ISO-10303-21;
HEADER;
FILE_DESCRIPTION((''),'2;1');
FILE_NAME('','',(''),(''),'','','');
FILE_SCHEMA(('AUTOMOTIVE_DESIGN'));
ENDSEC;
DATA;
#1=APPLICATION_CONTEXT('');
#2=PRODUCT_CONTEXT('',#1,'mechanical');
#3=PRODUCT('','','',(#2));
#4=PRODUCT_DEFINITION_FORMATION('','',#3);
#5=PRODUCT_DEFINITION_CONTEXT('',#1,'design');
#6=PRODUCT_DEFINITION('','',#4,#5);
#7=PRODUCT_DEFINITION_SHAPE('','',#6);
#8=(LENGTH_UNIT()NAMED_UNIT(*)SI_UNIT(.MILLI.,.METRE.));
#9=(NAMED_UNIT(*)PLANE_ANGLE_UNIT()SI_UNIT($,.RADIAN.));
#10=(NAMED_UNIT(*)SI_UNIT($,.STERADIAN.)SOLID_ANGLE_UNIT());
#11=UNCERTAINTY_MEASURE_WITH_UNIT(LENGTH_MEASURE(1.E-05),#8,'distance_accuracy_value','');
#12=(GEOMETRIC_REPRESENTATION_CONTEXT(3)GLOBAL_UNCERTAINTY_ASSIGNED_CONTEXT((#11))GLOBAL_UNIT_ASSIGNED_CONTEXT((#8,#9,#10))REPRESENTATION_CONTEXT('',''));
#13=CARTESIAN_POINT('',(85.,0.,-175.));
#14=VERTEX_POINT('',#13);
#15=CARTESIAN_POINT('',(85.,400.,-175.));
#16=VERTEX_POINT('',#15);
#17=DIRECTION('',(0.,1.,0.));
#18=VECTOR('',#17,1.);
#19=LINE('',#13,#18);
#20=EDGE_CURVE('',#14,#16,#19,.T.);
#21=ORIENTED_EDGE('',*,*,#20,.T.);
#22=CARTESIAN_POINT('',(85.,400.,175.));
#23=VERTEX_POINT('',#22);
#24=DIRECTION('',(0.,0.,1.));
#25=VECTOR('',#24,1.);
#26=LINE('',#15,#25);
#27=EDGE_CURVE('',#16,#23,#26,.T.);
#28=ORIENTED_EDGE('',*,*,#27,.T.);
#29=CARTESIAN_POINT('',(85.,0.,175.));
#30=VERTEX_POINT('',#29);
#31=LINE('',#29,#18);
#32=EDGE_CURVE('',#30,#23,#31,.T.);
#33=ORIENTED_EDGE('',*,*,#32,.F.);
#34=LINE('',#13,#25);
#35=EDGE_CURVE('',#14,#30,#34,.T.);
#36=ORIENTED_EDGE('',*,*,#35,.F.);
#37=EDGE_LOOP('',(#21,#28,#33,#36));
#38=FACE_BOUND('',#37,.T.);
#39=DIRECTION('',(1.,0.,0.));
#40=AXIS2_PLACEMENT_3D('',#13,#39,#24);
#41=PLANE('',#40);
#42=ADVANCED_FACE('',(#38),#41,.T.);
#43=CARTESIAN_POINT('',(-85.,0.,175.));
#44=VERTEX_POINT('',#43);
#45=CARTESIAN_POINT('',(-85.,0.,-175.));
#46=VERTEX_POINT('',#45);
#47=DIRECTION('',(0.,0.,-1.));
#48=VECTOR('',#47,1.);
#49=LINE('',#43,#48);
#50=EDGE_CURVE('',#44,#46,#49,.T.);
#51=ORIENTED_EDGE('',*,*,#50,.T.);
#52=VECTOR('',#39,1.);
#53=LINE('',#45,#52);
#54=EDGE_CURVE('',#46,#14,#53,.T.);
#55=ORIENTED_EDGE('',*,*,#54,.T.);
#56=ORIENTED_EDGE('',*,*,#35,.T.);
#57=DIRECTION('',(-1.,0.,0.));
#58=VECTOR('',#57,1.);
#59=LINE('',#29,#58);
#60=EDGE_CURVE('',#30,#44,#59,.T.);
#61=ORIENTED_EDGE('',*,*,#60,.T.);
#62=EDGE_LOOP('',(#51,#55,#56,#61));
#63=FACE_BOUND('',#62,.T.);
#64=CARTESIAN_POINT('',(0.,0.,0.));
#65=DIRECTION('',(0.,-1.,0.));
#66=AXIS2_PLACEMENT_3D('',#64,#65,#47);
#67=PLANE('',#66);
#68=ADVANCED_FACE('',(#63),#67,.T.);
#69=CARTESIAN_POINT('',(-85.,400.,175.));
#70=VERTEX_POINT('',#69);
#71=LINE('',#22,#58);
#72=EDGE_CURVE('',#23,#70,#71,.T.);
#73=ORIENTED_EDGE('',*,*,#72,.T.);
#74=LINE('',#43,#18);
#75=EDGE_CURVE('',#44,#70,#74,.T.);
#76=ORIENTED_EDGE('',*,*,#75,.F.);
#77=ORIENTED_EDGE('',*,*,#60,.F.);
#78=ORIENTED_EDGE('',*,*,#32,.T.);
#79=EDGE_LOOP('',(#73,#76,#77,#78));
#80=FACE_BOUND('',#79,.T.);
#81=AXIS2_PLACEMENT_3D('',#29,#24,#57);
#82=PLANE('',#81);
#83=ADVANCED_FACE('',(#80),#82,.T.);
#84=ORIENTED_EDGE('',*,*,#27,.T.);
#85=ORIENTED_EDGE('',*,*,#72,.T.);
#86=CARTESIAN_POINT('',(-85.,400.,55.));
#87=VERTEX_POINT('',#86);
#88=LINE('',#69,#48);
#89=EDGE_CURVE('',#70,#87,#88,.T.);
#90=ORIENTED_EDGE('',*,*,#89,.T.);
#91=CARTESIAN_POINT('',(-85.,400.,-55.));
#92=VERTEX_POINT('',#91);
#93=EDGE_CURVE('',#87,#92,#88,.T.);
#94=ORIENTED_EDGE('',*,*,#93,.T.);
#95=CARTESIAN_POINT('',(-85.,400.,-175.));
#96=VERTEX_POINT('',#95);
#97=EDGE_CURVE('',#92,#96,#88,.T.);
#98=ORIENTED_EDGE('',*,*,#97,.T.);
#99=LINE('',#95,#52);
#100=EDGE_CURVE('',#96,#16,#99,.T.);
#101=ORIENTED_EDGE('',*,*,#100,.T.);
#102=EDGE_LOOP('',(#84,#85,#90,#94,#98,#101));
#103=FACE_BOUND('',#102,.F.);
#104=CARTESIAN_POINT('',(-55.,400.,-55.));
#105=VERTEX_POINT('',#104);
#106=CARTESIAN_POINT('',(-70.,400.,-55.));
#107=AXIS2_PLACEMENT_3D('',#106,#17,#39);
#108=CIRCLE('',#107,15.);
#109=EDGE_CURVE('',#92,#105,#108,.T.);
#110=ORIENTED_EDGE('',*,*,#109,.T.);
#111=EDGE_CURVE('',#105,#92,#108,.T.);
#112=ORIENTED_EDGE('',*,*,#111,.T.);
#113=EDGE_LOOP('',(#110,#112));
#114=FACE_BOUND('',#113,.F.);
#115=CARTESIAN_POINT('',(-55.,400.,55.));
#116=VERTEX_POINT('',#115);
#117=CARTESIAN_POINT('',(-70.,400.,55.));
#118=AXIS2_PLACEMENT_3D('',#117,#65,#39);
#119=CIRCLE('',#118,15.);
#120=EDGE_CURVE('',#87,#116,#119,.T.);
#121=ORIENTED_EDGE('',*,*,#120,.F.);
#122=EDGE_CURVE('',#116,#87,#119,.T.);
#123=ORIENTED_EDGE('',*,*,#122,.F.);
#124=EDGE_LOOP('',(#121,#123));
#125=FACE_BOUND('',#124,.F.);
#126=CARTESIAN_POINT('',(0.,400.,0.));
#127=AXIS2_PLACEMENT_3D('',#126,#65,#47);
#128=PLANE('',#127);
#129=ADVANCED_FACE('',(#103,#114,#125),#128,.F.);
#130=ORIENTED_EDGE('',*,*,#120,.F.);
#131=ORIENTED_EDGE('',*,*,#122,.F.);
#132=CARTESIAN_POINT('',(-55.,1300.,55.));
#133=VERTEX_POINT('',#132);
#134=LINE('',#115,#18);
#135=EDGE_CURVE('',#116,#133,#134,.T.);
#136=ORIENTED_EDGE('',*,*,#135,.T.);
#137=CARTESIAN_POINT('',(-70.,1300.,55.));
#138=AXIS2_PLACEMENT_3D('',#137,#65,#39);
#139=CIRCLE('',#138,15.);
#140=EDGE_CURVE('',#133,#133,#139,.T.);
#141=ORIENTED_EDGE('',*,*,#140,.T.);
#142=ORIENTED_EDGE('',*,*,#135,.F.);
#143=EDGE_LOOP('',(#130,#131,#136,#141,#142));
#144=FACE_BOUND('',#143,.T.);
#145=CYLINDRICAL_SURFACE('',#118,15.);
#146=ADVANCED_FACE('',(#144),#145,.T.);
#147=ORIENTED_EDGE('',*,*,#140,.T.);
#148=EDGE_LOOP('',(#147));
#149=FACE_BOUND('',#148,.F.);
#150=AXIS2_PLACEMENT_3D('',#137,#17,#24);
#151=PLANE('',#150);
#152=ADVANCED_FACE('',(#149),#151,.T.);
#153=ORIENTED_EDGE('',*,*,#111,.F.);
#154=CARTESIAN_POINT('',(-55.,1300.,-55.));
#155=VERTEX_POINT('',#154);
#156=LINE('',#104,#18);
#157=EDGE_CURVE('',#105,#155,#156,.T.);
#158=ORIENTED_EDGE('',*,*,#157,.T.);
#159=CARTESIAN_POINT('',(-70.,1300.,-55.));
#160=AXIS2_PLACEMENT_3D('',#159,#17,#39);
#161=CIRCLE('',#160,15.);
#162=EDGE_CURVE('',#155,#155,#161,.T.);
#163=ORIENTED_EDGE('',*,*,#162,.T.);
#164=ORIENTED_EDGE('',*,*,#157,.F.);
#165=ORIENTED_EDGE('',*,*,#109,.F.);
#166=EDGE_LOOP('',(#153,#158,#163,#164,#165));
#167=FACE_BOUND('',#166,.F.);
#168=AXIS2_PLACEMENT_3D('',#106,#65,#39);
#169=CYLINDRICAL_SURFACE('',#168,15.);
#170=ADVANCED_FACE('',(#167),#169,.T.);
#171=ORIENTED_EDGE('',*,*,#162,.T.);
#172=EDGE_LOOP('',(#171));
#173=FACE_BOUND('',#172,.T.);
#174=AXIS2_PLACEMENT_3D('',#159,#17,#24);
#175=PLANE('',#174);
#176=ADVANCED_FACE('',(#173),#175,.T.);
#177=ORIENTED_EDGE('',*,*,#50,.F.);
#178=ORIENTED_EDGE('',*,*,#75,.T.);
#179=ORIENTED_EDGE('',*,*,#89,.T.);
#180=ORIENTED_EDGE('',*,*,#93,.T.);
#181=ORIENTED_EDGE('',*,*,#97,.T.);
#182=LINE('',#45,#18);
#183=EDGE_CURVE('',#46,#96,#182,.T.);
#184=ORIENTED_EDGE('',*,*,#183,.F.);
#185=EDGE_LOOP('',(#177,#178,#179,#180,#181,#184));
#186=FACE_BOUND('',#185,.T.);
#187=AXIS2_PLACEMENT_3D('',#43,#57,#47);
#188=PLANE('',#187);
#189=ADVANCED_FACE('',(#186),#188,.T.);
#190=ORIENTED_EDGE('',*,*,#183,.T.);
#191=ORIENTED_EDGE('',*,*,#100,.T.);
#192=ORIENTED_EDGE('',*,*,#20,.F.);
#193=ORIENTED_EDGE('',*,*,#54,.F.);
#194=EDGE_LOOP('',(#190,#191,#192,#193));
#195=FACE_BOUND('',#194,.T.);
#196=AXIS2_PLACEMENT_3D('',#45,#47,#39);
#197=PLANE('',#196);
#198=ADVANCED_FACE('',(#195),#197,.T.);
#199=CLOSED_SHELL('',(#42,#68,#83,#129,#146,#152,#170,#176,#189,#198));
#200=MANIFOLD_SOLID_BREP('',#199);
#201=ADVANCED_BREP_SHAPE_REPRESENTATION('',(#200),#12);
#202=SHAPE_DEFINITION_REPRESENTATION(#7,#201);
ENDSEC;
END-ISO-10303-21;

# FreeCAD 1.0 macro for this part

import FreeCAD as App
import Part
import Sketcher

V = App.Vector
Q = App.Units.Quantity

doc = App.newDocument("Part")
body = doc.addObject("PartDesign::Body", "Body")

# Sketch on XZ plane
sketch1 = body.newObject("Sketcher::SketchObject", "Sketch")
sketch1.AttachmentSupport = (doc.getObject("XZ_Plane"), [""])
sketch1.MapMode = "FlatFace"
sketch1.addGeometry(Part.LineSegment(V(85, 175, 0), V(-85, 175, 0)), False)
sketch1.addGeometry(Part.LineSegment(V(-85, 175, 0), V(-85, -175, 0)), False)
sketch1.addGeometry(Part.LineSegment(V(-85, -175, 0), V(85, -175, 0)), False)
sketch1.addGeometry(Part.LineSegment(V(85, -175, 0), V(85, 175, 0)), False)
sketch1.addConstraint(Sketcher.Constraint("Coincident", 0, 2, 1, 1))
sketch1.addConstraint(Sketcher.Constraint("Coincident", 1, 2, 2, 1))
sketch1.addConstraint(Sketcher.Constraint("Coincident", 2, 2, 3, 1))
sketch1.addConstraint(Sketcher.Constraint("Coincident", 3, 2, 0, 1))
sketch1.addConstraint(Sketcher.Constraint("Horizontal", 0))
sketch1.addConstraint(Sketcher.Constraint("Vertical", 1))
sketch1.addConstraint(Sketcher.Constraint("Horizontal", 2))
sketch1.addConstraint(Sketcher.Constraint("Vertical", 3))
sketch1.addConstraint(Sketcher.Constraint("Symmetric", 0, 2, 2, 2, -1, 1))
sketch1.addConstraint(Sketcher.Constraint("DistanceX", 0, 2, 0, 1, Q("170 mm")))
sketch1.addConstraint(Sketcher.Constraint("DistanceY", 1, 2, 1, 1, Q("350 mm")))
pad1 = body.newObject("PartDesign::Pad", "Pad")
pad1.Profile = sketch1
pad1.Length = 400
pad1.Reversed = True

# Sketch on XZ plane
sketch2 = body.newObject("Sketcher::SketchObject", "Sketch001")
sketch2.AttachmentSupport = (doc.getObject("XZ_Plane"), [""])
sketch2.MapMode = "FlatFace"
sketch2.AttachmentOffset = App.Placement(V(0, 0, -400), App.Rotation())
sketch2.addGeometry(Part.Circle(V(-70, -55, 0), V(0, 0, 1), 15), False)
sketch2.addConstraint(Sketcher.Constraint("Diameter", 0, Q("30 mm")))
sketch2.addConstraint(Sketcher.Constraint("DistanceX", 0, 3, -1, 1, Q("70 mm")))
sketch2.addConstraint(Sketcher.Constraint("DistanceY", 0, 3, -1, 1, Q("55 mm")))
pad2 = body.newObject("PartDesign::Pad", "Pad001")
pad2.Profile = sketch2
pad2.Length = 900
pad2.Reversed = True
doc.recompute()

mirrored = body.newObject("PartDesign::Mirrored", "Mirrored")
mirrored.Originals = [pad2]
mirrored.MirrorPlane = (doc.getObject("XY_Plane"), [""])
body.Tip = mirrored

doc.recompute()
